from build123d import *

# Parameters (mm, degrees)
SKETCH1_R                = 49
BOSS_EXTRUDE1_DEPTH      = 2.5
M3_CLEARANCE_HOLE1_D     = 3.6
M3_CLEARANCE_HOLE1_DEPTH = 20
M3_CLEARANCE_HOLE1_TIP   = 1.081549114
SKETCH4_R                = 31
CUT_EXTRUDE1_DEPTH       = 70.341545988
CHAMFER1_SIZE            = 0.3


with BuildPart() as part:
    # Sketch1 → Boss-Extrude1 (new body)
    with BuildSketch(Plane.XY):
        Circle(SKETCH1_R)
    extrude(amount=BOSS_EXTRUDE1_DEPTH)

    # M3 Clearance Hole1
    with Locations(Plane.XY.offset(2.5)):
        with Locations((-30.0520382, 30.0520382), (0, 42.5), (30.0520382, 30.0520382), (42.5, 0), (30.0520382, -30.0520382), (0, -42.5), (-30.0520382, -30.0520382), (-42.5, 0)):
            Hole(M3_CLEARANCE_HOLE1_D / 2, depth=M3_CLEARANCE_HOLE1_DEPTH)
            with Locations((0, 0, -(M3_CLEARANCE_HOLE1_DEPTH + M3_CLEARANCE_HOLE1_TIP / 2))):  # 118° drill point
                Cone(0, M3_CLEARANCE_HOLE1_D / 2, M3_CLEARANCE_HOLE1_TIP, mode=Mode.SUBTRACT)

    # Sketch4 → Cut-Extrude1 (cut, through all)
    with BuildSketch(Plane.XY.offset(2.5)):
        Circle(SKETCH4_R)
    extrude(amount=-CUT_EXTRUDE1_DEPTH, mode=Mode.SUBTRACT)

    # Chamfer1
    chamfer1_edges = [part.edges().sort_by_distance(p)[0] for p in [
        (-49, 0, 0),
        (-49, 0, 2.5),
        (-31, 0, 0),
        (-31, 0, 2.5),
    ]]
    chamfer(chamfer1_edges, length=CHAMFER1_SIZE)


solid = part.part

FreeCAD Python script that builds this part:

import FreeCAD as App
import Part
import Sketcher
Q = App.Units.Quantity


def edges_at(feature, points):
    """Names of the edges that pass closest to the given points."""
    edges = feature.Shape.Edges
    near = lambda p: min(range(len(edges)), key=lambda i: edges[i].distToShape(Part.Vertex(*p))[0])
    return sorted({f"Edge{near(p) + 1}" for p in points})

doc = App.newDocument("Part")
params = doc.addObject("Spreadsheet::Sheet", "Params")
for row, (alias, value) in enumerate([
    ("sketch1_diameter", "98 mm"),
    ("pad1_length", "2.5 mm"),
    ("sketch2_diameter", "3.6 mm"),
    ("hole_diameter", "3.6 mm"),
    ("hole_depth", "20 mm"),
    ("sketch3_diameter", "62 mm"),
    ("chamfer_size", "0.3 mm"),
], start=1):
    params.set(f"A{row}", alias)
    params.set(f"B{row}", "=" + value)
    params.setAlias(f"B{row}", alias)

body = doc.addObject("PartDesign::Body", "Body")

# Sketch on XY plane
sketch1 = body.newObject("Sketcher::SketchObject", "Sketch")
sketch1.AttachmentSupport = (doc.getObject("XY_Plane"), [""])
sketch1.MapMode = "FlatFace"
sketch1.addGeometry(Part.Circle(App.Vector(0, 0, 0), App.Vector(0, 0, 1), 49), False)
sketch1.addConstraint(Sketcher.Constraint("Coincident", 0, 3, -1, 1))
sketch1.addConstraint(Sketcher.Constraint("Diameter", 0, Q("98 mm")))
sketch1.setExpression("Constraints[1]", "Params.sketch1_diameter")
pad1 = body.newObject("PartDesign::Pad", "Pad")
pad1.Profile = sketch1
pad1.setExpression("Length", "Params.pad1_length")

# Sketch on XY plane
sketch2 = body.newObject("Sketcher::SketchObject", "Sketch001")
sketch2.AttachmentSupport = (doc.getObject("XY_Plane"), [""])
sketch2.MapMode = "FlatFace"
sketch2.AttachmentOffset = App.Placement(App.Vector(0, 0, 2.5), App.Rotation())
sketch2.addGeometry(Part.Circle(App.Vector(-30.1, 30.1, 0), App.Vector(0, 0, 1), 1.8), False)
sketch2.addGeometry(Part.Circle(App.Vector(0, 42.5, 0), App.Vector(0, 0, 1), 1.8), False)
sketch2.addGeometry(Part.Circle(App.Vector(30.1, 30.1, 0), App.Vector(0, 0, 1), 1.8), False)
sketch2.addGeometry(Part.Circle(App.Vector(42.5, 0, 0), App.Vector(0, 0, 1), 1.8), False)
sketch2.addGeometry(Part.Circle(App.Vector(30.1, -30.1, 0), App.Vector(0, 0, 1), 1.8), False)
sketch2.addGeometry(Part.Circle(App.Vector(0, -42.5, 0), App.Vector(0, 0, 1), 1.8), False)
sketch2.addGeometry(Part.Circle(App.Vector(-30.1, -30.1, 0), App.Vector(0, 0, 1), 1.8), False)
sketch2.addGeometry(Part.Circle(App.Vector(-42.5, 0, 0), App.Vector(0, 0, 1), 1.8), False)
sketch2.addConstraint(Sketcher.Constraint("Equal", 0, 1))
sketch2.addConstraint(Sketcher.Constraint("Equal", 1, 2))
sketch2.addConstraint(Sketcher.Constraint("Equal", 2, 3))
sketch2.addConstraint(Sketcher.Constraint("Equal", 3, 4))
sketch2.addConstraint(Sketcher.Constraint("Equal", 4, 5))
sketch2.addConstraint(Sketcher.Constraint("Equal", 5, 6))
sketch2.addConstraint(Sketcher.Constraint("Equal", 6, 7))
sketch2.addConstraint(Sketcher.Constraint("Symmetric", 0, 3, 4, 3, -1, 1))
sketch2.addConstraint(Sketcher.Constraint("Symmetric", 1, 3, 5, 3, -1, 1))
sketch2.addConstraint(Sketcher.Constraint("Symmetric", 2, 3, 6, 3, -1, 1))
sketch2.addConstraint(Sketcher.Constraint("Symmetric", 3, 3, 7, 3, -1, 1))
sketch2.addConstraint(Sketcher.Constraint("Symmetric", 0, 3, 2, 3, -2))
sketch2.addConstraint(Sketcher.Constraint("PointOnObject", 1, 3, -2))
sketch2.addConstraint(Sketcher.Constraint("PointOnObject", 3, 3, -1))
sketch2.addConstraint(Sketcher.Constraint("Diameter", 0, Q("3.6 mm")))
sketch2.addConstraint(Sketcher.Constraint("DistanceY", 5, 3, 1, 3, Q("85 mm")))
sketch2.addConstraint(Sketcher.Constraint("DistanceX", -1, 1, 3, 3, Q("42.5 mm")))
sketch2.addConstraint(Sketcher.Constraint("DistanceX", 0, 3, -1, 1, Q("30.052038 mm")))
sketch2.addConstraint(Sketcher.Constraint("DistanceY", -1, 1, 0, 3, Q("30.052038 mm")))
sketch2.setExpression("Constraints[14]", "Params.sketch2_diameter")
doc.recompute()
hole = body.newObject("PartDesign::Hole", "Hole")
hole.Profile = sketch2
hole.ThreadType = "None"
hole.setExpression("Diameter", "Params.hole_diameter")
hole.DepthType = "Dimension"
hole.setExpression("Depth", "Params.hole_depth")
hole.DrillPoint = "Angled"
hole.DrillPointAngle = 118

# Sketch on XY plane
sketch3 = body.newObject("Sketcher::SketchObject", "Sketch002")
sketch3.AttachmentSupport = (doc.getObject("XY_Plane"), [""])
sketch3.MapMode = "FlatFace"
sketch3.AttachmentOffset = App.Placement(App.Vector(0, 0, 2.5), App.Rotation())
sketch3.addGeometry(Part.Circle(App.Vector(0, 0, 0), App.Vector(0, 0, 1), 31), False)
sketch3.addConstraint(Sketcher.Constraint("Coincident", 0, 3, -1, 1))
sketch3.addConstraint(Sketcher.Constraint("Diameter", 0, Q("62 mm")))
sketch3.setExpression("Constraints[1]", "Params.sketch3_diameter")
pocket1 = body.newObject("PartDesign::Pocket", "Pocket")
pocket1.Profile = sketch3
pocket1.Type = "ThroughAll"
doc.recompute()

chamfer = body.newObject("PartDesign::Chamfer", "Chamfer")
chamfer.Base = (pocket1, edges_at(pocket1, [
    (-49, 0, 0),
    (-49, 0, 2.5),
    (-31, 0, 0),
    (-31, 0, 2.5),
]))
chamfer.setExpression("Size", "Params.chamfer_size")

doc.recompute()
